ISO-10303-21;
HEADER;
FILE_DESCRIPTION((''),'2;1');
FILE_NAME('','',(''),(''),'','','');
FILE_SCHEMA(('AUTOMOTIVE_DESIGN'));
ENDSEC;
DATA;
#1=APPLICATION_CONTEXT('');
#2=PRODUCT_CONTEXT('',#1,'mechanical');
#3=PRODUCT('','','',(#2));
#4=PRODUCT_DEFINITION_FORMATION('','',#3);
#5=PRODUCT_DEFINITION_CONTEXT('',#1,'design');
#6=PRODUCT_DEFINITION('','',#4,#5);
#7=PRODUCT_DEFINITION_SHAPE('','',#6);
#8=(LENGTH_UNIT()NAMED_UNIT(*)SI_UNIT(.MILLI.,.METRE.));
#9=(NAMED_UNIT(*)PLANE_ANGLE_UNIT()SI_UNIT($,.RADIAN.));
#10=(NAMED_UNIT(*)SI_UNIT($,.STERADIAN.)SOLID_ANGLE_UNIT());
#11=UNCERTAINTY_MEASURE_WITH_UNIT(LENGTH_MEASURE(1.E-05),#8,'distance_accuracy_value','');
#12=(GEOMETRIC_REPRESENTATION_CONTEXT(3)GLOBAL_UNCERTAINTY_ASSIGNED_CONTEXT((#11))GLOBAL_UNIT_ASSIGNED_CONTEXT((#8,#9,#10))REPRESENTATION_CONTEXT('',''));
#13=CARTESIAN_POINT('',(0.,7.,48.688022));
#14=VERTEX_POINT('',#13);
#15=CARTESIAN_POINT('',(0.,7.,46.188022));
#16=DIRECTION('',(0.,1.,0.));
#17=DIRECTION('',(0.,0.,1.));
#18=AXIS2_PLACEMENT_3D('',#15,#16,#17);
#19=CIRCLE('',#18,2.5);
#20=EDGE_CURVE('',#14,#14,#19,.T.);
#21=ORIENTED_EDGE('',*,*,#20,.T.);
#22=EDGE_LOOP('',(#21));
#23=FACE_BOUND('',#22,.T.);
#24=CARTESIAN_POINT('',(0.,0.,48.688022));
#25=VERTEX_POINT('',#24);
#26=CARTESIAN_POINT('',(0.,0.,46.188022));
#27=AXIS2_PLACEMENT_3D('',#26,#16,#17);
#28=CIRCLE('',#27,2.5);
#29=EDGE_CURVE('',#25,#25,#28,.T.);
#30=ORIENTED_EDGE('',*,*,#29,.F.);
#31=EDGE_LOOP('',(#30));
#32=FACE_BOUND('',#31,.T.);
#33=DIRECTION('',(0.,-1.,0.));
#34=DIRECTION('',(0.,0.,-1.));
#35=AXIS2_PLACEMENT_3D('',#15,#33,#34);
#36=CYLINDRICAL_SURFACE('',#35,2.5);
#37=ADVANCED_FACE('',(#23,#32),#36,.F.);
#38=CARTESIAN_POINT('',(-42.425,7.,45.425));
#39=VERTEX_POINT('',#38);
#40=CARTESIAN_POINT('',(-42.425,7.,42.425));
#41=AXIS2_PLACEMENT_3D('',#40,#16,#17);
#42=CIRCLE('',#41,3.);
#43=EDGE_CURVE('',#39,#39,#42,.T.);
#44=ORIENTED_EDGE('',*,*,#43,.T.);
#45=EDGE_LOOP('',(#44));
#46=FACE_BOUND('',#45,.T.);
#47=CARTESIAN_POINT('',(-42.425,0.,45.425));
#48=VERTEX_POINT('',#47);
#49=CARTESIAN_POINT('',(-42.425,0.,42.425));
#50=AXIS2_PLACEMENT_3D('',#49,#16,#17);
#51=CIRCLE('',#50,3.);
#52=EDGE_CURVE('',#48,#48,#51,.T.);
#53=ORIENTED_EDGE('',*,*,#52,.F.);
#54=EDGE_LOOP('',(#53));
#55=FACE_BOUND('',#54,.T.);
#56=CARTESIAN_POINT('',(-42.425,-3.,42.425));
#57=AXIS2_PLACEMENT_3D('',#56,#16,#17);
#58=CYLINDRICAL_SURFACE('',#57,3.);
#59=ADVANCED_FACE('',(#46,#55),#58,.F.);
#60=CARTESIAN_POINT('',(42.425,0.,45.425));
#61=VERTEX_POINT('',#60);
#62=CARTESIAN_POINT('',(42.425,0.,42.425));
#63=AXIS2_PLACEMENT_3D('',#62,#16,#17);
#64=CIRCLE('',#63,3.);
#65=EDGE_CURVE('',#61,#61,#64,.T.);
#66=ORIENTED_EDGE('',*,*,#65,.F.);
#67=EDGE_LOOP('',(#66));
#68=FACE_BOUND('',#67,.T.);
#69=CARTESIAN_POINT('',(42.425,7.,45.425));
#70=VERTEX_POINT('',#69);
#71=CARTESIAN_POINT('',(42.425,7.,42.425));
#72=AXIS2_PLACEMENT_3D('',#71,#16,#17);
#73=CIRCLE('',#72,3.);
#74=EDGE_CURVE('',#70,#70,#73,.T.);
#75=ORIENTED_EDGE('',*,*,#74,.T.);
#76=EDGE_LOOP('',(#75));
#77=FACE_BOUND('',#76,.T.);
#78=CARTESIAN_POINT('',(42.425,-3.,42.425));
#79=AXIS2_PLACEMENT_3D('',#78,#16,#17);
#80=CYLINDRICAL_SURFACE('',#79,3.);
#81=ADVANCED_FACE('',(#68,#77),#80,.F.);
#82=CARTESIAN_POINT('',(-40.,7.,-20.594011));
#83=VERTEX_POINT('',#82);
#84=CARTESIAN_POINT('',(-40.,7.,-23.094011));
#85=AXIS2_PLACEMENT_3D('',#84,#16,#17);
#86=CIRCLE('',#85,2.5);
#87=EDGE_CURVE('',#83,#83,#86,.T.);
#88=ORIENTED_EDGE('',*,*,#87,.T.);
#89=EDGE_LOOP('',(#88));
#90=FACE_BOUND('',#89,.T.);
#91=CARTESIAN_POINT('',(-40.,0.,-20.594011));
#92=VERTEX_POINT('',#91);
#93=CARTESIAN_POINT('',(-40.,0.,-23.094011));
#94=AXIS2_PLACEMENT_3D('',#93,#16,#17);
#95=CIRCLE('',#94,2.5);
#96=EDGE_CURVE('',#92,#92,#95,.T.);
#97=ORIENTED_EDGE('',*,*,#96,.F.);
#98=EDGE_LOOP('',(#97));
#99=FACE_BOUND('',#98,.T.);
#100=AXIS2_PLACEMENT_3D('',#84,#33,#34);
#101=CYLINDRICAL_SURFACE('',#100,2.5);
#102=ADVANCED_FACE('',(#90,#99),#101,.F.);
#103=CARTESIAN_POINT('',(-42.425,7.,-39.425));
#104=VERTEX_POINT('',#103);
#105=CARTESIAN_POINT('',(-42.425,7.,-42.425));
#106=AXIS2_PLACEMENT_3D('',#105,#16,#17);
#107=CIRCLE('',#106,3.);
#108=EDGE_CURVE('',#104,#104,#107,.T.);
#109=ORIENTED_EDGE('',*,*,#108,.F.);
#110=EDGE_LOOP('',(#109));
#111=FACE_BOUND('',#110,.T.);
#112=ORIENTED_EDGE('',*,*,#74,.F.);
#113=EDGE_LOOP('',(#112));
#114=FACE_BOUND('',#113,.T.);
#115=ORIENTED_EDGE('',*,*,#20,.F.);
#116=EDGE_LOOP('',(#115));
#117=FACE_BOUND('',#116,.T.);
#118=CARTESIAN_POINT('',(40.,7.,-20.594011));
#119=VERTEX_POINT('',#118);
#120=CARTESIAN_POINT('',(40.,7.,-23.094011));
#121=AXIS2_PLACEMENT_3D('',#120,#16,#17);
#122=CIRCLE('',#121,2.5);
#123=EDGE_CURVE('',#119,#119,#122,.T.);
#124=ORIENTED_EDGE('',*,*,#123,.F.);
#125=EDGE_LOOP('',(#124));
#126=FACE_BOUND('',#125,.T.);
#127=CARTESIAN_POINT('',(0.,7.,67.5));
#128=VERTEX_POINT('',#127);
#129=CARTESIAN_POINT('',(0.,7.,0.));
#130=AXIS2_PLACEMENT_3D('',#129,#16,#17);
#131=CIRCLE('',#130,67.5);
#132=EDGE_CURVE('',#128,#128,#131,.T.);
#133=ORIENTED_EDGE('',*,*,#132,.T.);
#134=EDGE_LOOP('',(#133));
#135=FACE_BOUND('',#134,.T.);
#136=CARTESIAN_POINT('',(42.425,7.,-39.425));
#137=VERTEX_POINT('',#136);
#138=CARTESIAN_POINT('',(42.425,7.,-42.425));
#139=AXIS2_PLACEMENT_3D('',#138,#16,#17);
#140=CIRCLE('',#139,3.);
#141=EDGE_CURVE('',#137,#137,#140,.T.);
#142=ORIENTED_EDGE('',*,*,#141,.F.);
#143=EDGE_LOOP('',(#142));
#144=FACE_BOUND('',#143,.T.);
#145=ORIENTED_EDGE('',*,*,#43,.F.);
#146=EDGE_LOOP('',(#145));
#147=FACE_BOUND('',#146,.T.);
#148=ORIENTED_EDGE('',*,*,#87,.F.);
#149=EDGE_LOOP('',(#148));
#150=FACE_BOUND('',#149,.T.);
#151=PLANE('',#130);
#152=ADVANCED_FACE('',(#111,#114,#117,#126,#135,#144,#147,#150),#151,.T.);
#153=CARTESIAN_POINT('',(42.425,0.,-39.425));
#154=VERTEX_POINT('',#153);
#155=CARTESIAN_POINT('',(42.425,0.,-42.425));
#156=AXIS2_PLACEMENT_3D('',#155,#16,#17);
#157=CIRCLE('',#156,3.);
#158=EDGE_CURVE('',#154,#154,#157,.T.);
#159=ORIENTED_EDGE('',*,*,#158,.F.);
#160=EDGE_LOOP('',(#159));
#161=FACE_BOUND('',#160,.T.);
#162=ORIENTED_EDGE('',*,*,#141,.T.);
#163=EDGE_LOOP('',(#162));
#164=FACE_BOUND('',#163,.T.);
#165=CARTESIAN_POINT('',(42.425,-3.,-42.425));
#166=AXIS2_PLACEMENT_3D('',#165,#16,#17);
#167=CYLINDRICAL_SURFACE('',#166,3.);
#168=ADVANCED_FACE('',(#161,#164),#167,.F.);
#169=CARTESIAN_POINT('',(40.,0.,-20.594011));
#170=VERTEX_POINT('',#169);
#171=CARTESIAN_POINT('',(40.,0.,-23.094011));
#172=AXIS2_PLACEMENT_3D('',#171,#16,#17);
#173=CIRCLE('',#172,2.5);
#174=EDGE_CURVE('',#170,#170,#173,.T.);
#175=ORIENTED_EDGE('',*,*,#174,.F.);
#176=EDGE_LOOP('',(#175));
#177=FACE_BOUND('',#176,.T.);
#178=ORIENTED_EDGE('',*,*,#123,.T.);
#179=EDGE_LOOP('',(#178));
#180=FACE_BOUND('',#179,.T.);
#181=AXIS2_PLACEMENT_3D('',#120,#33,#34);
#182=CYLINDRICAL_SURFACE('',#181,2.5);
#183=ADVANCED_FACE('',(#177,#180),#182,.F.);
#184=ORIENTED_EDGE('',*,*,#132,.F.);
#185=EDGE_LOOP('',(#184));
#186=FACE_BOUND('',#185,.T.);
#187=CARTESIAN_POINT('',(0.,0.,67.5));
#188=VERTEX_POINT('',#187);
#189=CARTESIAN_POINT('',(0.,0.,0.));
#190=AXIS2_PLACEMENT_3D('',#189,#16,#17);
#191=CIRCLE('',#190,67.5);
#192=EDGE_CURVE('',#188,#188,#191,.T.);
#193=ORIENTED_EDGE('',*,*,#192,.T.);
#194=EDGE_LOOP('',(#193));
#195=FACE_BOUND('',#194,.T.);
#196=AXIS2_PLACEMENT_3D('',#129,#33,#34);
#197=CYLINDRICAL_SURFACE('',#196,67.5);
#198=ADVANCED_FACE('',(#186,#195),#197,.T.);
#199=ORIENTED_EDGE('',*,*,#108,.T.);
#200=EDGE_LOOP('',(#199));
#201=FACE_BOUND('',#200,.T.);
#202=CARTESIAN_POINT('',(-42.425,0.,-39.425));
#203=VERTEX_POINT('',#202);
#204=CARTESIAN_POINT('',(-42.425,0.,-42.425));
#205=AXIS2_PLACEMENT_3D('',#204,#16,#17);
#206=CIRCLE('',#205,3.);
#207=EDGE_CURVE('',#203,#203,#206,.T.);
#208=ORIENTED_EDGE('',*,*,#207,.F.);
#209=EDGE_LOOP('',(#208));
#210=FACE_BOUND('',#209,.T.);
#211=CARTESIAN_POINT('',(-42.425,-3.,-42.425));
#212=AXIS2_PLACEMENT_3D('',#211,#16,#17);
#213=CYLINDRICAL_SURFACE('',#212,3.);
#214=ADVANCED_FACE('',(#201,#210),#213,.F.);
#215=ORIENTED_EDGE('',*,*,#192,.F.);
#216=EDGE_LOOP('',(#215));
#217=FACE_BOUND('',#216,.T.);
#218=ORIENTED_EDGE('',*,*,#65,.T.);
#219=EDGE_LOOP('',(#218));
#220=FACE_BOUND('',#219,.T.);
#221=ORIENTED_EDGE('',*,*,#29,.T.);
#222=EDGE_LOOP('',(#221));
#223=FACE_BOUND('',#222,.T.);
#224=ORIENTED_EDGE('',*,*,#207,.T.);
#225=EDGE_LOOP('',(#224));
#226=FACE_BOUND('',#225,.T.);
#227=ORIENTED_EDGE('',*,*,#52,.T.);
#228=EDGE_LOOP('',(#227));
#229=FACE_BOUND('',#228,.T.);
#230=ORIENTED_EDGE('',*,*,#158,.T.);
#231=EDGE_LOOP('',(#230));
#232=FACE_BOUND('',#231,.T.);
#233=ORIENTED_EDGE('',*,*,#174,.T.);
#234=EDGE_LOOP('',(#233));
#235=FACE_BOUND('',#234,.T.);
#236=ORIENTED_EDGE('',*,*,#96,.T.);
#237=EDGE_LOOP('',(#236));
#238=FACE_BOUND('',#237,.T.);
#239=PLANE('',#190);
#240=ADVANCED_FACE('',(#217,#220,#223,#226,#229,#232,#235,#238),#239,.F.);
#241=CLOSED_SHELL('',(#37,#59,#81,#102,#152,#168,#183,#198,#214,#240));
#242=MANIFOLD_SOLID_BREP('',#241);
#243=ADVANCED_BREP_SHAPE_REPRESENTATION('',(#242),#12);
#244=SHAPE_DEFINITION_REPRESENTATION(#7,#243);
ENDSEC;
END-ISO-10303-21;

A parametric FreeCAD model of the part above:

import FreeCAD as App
import Part
import Sketcher

doc = App.newDocument("Part")
body = doc.addObject("PartDesign::Body", "Body")

# Sketch on XZ plane
sketch1 = body.newObject("Sketcher::SketchObject", "Sketch")
sketch1.AttachmentSupport = (doc.getObject("XZ_Plane"), [""])
sketch1.MapMode = "FlatFace"
sketch1.addGeometry([
    Part.Circle(App.Vector(0, 0, 0), App.Vector(0, 0, 1), 67.5),
    Part.Circle(App.Vector(-40, -23.1, 0), App.Vector(0, 0, 1), 2.5),
    Part.Circle(App.Vector(40, -23.1, 0), App.Vector(0, 0, 1), 2.5),
    Part.Circle(App.Vector(0, 46.2, 0), App.Vector(0, 0, 1), 2.5),
], False)
sketch1.addConstraint([
    Sketcher.Constraint("Coincident", 0, 3, -1, 1),
    Sketcher.Constraint("Equal", 1, 2),
    Sketcher.Constraint("Equal", 2, 3),
    Sketcher.Constraint("Symmetric", 1, 3, 2, 3, -2),
    Sketcher.Constraint("PointOnObject", 3, 3, -2),
    Sketcher.Constraint("Diameter", 0, 135.0),
    Sketcher.Constraint("Diameter", 1, 5.0),
    Sketcher.Constraint("DistanceX", 1, 3, -1, 1, 40.0),
    Sketcher.Constraint("DistanceY", 1, 3, -1, 1, 23.094011),
    Sketcher.Constraint("DistanceY", -1, 1, 3, 3, 46.188022),
])
pad1 = body.newObject("PartDesign::Pad", "Pad")
pad1.Profile = sketch1
pad1.Length = 7
pad1.Reversed = True

# Sketch on XZ plane
sketch2 = body.newObject("Sketcher::SketchObject", "Sketch001")
sketch2.AttachmentSupport = (doc.getObject("XZ_Plane"), [""])
sketch2.MapMode = "FlatFace"
sketch2.AttachmentOffset = App.Placement(App.Vector(0, 0, -7), App.Rotation())
sketch2.addGeometry([
    Part.Circle(App.Vector(42.4, -42.4, 0), App.Vector(0, 0, 1), 3),
    Part.Circle(App.Vector(42.4, 42.4, 0), App.Vector(0, 0, 1), 3),
    Part.Circle(App.Vector(-42.4, 42.4, 0), App.Vector(0, 0, 1), 3),
    Part.Circle(App.Vector(-42.4, -42.4, 0), App.Vector(0, 0, 1), 3),
], False)
sketch2.addConstraint([
    Sketcher.Constraint("Equal", 0, 1),
    Sketcher.Constraint("Equal", 1, 2),
    Sketcher.Constraint("Equal", 2, 3),
    Sketcher.Constraint("Symmetric", 0, 3, 2, 3, -1, 1),
    Sketcher.Constraint("Symmetric", 1, 3, 3, 3, -1, 1),
    Sketcher.Constraint("Symmetric", 1, 3, 2, 3, -2),
    Sketcher.Constraint("Diameter", 0, 6.0),
    Sketcher.Constraint("DistanceY", 0, 3, 1, 3, 84.85),
    Sketcher.Constraint("DistanceX", 2, 3, 1, 3, 84.85),
])
pocket1 = body.newObject("PartDesign::Pocket", "Pocket")
pocket1.Profile = sketch2
pocket1.Length = 10
pocket1.Reversed = True

doc.recompute()
